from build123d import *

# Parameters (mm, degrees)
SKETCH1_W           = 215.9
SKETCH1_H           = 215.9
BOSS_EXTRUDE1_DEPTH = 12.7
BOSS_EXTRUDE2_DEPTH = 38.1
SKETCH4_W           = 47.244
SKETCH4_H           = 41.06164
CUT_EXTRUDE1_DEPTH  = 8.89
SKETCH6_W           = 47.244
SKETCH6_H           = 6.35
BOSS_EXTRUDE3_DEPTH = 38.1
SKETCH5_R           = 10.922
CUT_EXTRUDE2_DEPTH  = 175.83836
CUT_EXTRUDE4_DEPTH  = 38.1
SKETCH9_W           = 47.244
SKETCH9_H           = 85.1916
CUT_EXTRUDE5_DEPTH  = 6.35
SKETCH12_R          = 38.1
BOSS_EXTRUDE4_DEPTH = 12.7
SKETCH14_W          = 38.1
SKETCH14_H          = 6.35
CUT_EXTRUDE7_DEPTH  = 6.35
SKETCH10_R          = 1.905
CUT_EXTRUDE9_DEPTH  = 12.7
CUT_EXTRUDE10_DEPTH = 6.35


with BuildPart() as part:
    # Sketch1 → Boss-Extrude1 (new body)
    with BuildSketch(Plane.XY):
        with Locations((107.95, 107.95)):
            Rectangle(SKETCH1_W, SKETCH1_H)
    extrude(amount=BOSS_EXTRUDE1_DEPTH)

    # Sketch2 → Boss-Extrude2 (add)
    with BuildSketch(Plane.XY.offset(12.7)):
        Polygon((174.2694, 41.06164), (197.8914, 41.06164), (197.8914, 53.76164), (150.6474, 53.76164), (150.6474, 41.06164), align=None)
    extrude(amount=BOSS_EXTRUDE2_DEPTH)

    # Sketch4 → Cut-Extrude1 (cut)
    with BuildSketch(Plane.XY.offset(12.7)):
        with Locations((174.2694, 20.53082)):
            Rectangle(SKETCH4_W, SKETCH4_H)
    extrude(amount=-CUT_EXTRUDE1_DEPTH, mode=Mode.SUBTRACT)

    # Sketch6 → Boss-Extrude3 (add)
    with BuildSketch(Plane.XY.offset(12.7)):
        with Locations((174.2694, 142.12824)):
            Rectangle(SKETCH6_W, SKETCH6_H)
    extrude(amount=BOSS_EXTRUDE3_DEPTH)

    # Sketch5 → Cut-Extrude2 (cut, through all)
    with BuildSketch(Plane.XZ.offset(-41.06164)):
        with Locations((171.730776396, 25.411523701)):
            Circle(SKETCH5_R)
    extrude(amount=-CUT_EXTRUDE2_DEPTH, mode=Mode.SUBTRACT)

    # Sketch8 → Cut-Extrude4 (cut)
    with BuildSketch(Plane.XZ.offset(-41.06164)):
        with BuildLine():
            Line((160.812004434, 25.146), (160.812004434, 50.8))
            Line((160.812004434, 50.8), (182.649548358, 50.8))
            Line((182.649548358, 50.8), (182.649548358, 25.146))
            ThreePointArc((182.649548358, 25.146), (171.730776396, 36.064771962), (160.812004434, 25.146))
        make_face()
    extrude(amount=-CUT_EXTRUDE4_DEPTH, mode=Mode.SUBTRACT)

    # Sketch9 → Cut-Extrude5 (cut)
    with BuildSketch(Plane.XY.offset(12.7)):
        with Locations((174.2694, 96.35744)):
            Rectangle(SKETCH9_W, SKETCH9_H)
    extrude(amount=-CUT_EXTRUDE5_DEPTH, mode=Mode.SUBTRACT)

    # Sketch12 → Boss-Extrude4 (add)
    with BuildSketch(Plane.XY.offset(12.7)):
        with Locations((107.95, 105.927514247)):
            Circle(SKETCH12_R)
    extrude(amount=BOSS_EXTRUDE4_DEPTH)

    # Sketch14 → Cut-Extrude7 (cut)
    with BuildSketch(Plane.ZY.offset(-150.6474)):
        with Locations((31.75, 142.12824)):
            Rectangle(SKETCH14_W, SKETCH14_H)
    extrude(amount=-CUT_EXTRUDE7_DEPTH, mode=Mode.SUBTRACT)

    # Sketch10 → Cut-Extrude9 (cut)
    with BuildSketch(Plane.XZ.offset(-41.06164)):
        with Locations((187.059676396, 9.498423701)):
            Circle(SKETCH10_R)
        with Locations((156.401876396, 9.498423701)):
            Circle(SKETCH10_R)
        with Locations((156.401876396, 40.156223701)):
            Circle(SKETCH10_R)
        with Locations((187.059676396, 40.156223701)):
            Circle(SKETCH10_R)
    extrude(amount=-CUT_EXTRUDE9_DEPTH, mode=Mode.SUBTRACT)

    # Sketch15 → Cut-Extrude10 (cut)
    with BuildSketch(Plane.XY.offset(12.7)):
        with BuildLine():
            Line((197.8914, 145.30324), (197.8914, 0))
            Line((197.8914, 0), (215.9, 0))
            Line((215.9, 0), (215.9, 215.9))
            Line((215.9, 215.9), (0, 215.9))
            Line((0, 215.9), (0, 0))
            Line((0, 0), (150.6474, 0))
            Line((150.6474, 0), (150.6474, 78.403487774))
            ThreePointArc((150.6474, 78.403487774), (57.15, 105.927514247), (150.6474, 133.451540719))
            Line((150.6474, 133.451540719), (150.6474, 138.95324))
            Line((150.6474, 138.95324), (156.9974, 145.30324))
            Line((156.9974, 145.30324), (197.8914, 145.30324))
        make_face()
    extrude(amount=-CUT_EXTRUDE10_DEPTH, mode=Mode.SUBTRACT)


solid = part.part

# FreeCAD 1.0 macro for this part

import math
import FreeCAD as App
import Part
import Sketcher
from FreeCAD import Vector
Q = App.Units.Quantity

doc = App.newDocument("Part")
body = doc.addObject("PartDesign::Body", "Body")

sketch1 = doc.addObject("Sketcher::SketchObject", "Sketch")
body.addObject(sketch1)
sketch1.AttachmentSupport = (doc.XY_Plane, [""])
sketch1.MapMode = "FlatFace"
sketch1.addGeometry(Part.LineSegment(Vector(0, 215.9, 0), Vector(0, 0, 0)), False)
sketch1.addGeometry(Part.LineSegment(Vector(0, 0, 0), Vector(215.9, 0, 0)), False)
sketch1.addGeometry(Part.LineSegment(Vector(215.9, 0, 0), Vector(215.9, 215.9, 0)), False)
sketch1.addGeometry(Part.LineSegment(Vector(215.9, 215.9, 0), Vector(0, 215.9, 0)), False)
sketch1.addConstraint(Sketcher.Constraint("Coincident", 0, 2, 1, 1))
sketch1.addConstraint(Sketcher.Constraint("Coincident", 1, 2, 2, 1))
sketch1.addConstraint(Sketcher.Constraint("Coincident", 2, 2, 3, 1))
sketch1.addConstraint(Sketcher.Constraint("Coincident", 3, 2, 0, 1))
sketch1.addConstraint(Sketcher.Constraint("Vertical", 0))
sketch1.addConstraint(Sketcher.Constraint("Horizontal", 1))
sketch1.addConstraint(Sketcher.Constraint("Vertical", 2))
sketch1.addConstraint(Sketcher.Constraint("Horizontal", 3))
sketch1.addConstraint(Sketcher.Constraint("Coincident", 0, 2, -1, 1))
sketch1.addConstraint(Sketcher.Constraint("Equal", 3, 0))
sketch1.addConstraint(Sketcher.Constraint("DistanceX", 1, 1, 1, 2, Q("8.5 in")))
pad1 = doc.addObject("PartDesign::Pad", "Pad")
body.addObject(pad1)
pad1.Profile = sketch1
pad1.Length = Q("0.5 in")

sketch2 = doc.addObject("Sketcher::SketchObject", "Sketch001")
body.addObject(sketch2)
sketch2.AttachmentSupport = (doc.XY_Plane, [""])
sketch2.MapMode = "FlatFace"
sketch2.AttachmentOffset = App.Placement(Vector(0, 0, 0.5 * 25.4), App.Rotation())
sketch2.addGeometry(Part.LineSegment(Vector(197.8914, 41.06164, 0), Vector(197.8914, 53.76164, 0)), False)
sketch2.addGeometry(Part.LineSegment(Vector(197.8914, 53.76164, 0), Vector(150.6474, 53.76164, 0)), False)
sketch2.addGeometry(Part.LineSegment(Vector(150.6474, 53.76164, 0), Vector(150.6474, 41.06164, 0)), False)
sketch2.addGeometry(Part.LineSegment(Vector(150.6474, 41.06164, 0), Vector(197.8914, 41.06164, 0)), False)
sketch2.addConstraint(Sketcher.Constraint("Coincident", 0, 2, 1, 1))
sketch2.addConstraint(Sketcher.Constraint("Coincident", 1, 2, 2, 1))
sketch2.addConstraint(Sketcher.Constraint("Coincident", 2, 2, 3, 1))
sketch2.addConstraint(Sketcher.Constraint("Coincident", 3, 2, 0, 1))
sketch2.addConstraint(Sketcher.Constraint("Vertical", 0))
sketch2.addConstraint(Sketcher.Constraint("Horizontal", 1))
sketch2.addConstraint(Sketcher.Constraint("Vertical", 2))
sketch2.addConstraint(Sketcher.Constraint("Horizontal", 3))
sketch2.addConstraint(Sketcher.Constraint("DistanceY", 0, 1, 0, 2, Q("0.5 in")))
sketch2.addConstraint(Sketcher.Constraint("DistanceX", 1, 2, 1, 1, Q("1.86 in")))
sketch2.addConstraint(Sketcher.Constraint("DistanceX", -1, 1, 0, 2, Q("7.791 in")))
sketch2.addConstraint(Sketcher.Constraint("DistanceY", -1, 1, 0, 2, Q("2.1166 in")))
pad2 = doc.addObject("PartDesign::Pad", "Pad001")
body.addObject(pad2)
pad2.Profile = sketch2
pad2.Length = Q("1.5 in")

sketch3 = doc.addObject("Sketcher::SketchObject", "Sketch002")
body.addObject(sketch3)
sketch3.AttachmentSupport = (doc.XY_Plane, [""])
sketch3.MapMode = "FlatFace"
sketch3.AttachmentOffset = App.Placement(Vector(0, 0, 0.5 * 25.4), App.Rotation())
sketch3.addGeometry(Part.LineSegment(Vector(150.6474, 41.06164, 0), Vector(150.6474, 0, 0)), False)
sketch3.addGeometry(Part.LineSegment(Vector(150.6474, 0, 0), Vector(197.8914, 0, 0)), False)
sketch3.addGeometry(Part.LineSegment(Vector(197.8914, 0, 0), Vector(197.8914, 41.06164, 0)), False)
sketch3.addGeometry(Part.LineSegment(Vector(197.8914, 41.06164, 0), Vector(150.6474, 41.06164, 0)), False)
sketch3.addConstraint(Sketcher.Constraint("Coincident", 0, 2, 1, 1))
sketch3.addConstraint(Sketcher.Constraint("Coincident", 1, 2, 2, 1))
sketch3.addConstraint(Sketcher.Constraint("Coincident", 2, 2, 3, 1))
sketch3.addConstraint(Sketcher.Constraint("Coincident", 3, 2, 0, 1))
sketch3.addConstraint(Sketcher.Constraint("Vertical", 0))
sketch3.addConstraint(Sketcher.Constraint("Horizontal", 1))
sketch3.addConstraint(Sketcher.Constraint("Vertical", 2))
sketch3.addConstraint(Sketcher.Constraint("Horizontal", 3))
sketch3.addConstraint(Sketcher.Constraint("PointOnObject", 0, 2, -1))
sketch3.addConstraint(Sketcher.Constraint("DistanceX", 1, 1, 1, 2, Q("1.86 in")))
sketch3.addConstraint(Sketcher.Constraint("DistanceY", 0, 2, 0, 1, Q("1.6166 in")))
sketch3.addConstraint(Sketcher.Constraint("DistanceX", -1, 1, 0, 2, Q("5.931 in")))
pocket1 = doc.addObject("PartDesign::Pocket", "Pocket")
body.addObject(pocket1)
pocket1.Profile = sketch3
pocket1.Length = Q("0.35 in")

sketch4 = doc.addObject("Sketcher::SketchObject", "Sketch003")
body.addObject(sketch4)
sketch4.AttachmentSupport = (doc.XY_Plane, [""])
sketch4.MapMode = "FlatFace"
sketch4.AttachmentOffset = App.Placement(Vector(0, 0, 0.5 * 25.4), App.Rotation())
sketch4.addGeometry(Part.LineSegment(Vector(150.6474, 145.30324, 0), Vector(150.6474, 138.95324, 0)), False)
sketch4.addGeometry(Part.LineSegment(Vector(150.6474, 138.95324, 0), Vector(197.8914, 138.95324, 0)), False)
sketch4.addGeometry(Part.LineSegment(Vector(197.8914, 138.95324, 0), Vector(197.8914, 145.30324, 0)), False)
sketch4.addGeometry(Part.LineSegment(Vector(197.8914, 145.30324, 0), Vector(150.6474, 145.30324, 0)), False)
sketch4.addConstraint(Sketcher.Constraint("Coincident", 0, 2, 1, 1))
sketch4.addConstraint(Sketcher.Constraint("Coincident", 1, 2, 2, 1))
sketch4.addConstraint(Sketcher.Constraint("Coincident", 2, 2, 3, 1))
sketch4.addConstraint(Sketcher.Constraint("Coincident", 3, 2, 0, 1))
sketch4.addConstraint(Sketcher.Constraint("Vertical", 0))
sketch4.addConstraint(Sketcher.Constraint("Horizontal", 1))
sketch4.addConstraint(Sketcher.Constraint("Vertical", 2))
sketch4.addConstraint(Sketcher.Constraint("Horizontal", 3))
sketch4.addConstraint(Sketcher.Constraint("DistanceX", 1, 1, 1, 2, Q("1.86 in")))
sketch4.addConstraint(Sketcher.Constraint("DistanceY", 0, 2, 0, 1, Q("0.25 in")))
sketch4.addConstraint(Sketcher.Constraint("DistanceX", -1, 1, 0, 2, Q("5.931 in")))
sketch4.addConstraint(Sketcher.Constraint("DistanceY", -1, 1, 0, 2, Q("5.4706 in")))
pad3 = doc.addObject("PartDesign::Pad", "Pad002")
body.addObject(pad3)
pad3.Profile = sketch4
pad3.Length = Q("1.5 in")

sketch5 = doc.addObject("Sketcher::SketchObject", "Sketch004")
body.addObject(sketch5)
sketch5.AttachmentSupport = (doc.XZ_Plane, [""])
sketch5.MapMode = "FlatFace"
sketch5.AttachmentOffset = App.Placement(Vector(0, 0, -1.6166 * 25.4), App.Rotation())
sketch5.addGeometry(Part.Circle(Vector(171.730776, 25.411524, 0), Vector(0, 0, 1), 10.922), False)
sketch5.addConstraint(Sketcher.Constraint("Diameter", 0, Q("0.86 in")))
sketch5.addConstraint(Sketcher.Constraint("DistanceX", -1, 1, 0, 3, 171.730776))
sketch5.addConstraint(Sketcher.Constraint("DistanceY", -1, 1, 0, 3, 25.411524))
pocket2 = doc.addObject("PartDesign::Pocket", "Pocket001")
body.addObject(pocket2)
pocket2.Profile = sketch5
pocket2.Type = "ThroughAll"

sketch6 = doc.addObject("Sketcher::SketchObject", "Sketch005")
body.addObject(sketch6)
sketch6.AttachmentSupport = (doc.XZ_Plane, [""])
sketch6.MapMode = "FlatFace"
sketch6.AttachmentOffset = App.Placement(Vector(0, 0, -1.6166 * 25.4), App.Rotation())
sketch6.addGeometry(Part.LineSegment(Vector(160.812004, 50.8, 0), Vector(160.812004, 25.146, 0)), False)
sketch6.addGeometry(Part.ArcOfCircle(Part.Circle(Vector(171.730776, 25.146, 0), Vector(0, 0, 1), 10.918772), math.radians(0), math.radians(180)), False)
sketch6.addGeometry(Part.LineSegment(Vector(182.649548, 25.146, 0), Vector(182.649548, 50.8, 0)), False)
sketch6.addGeometry(Part.LineSegment(Vector(182.649548, 50.8, 0), Vector(160.812004, 50.8, 0)), False)
sketch6.addConstraint(Sketcher.Constraint("Tangent", 0, 2, 1, 2))
sketch6.addConstraint(Sketcher.Constraint("Tangent", 1, 1, 2, 1))
sketch6.addConstraint(Sketcher.Constraint("Coincident", 2, 2, 3, 1))
sketch6.addConstraint(Sketcher.Constraint("Coincident", 3, 2, 0, 1))
sketch6.addConstraint(Sketcher.Constraint("Vertical", 0))
sketch6.addConstraint(Sketcher.Constraint("Vertical", 2))
sketch6.addConstraint(Sketcher.Constraint("Horizontal", 3))
sketch6.addConstraint(Sketcher.Constraint("DistanceY", -1, 1, 2, 2, Q("2 in")))
sketch6.addConstraint(Sketcher.Constraint("DistanceY", 0, 2, 0, 1, Q("1.01 in")))
sketch6.addConstraint(Sketcher.Constraint("Radius", 1, 10.918772))
sketch6.addConstraint(Sketcher.Constraint("DistanceX", -1, 1, 1, 1, 182.649548))
pocket3 = doc.addObject("PartDesign::Pocket", "Pocket002")
body.addObject(pocket3)
pocket3.Profile = sketch6
pocket3.Length = Q("1.5 in")

sketch7 = doc.addObject("Sketcher::SketchObject", "Sketch006")
body.addObject(sketch7)
sketch7.AttachmentSupport = (doc.XY_Plane, [""])
sketch7.MapMode = "FlatFace"
sketch7.AttachmentOffset = App.Placement(Vector(0, 0, 0.5 * 25.4), App.Rotation())
sketch7.addGeometry(Part.LineSegment(Vector(150.6474, 138.95324, 0), Vector(150.6474, 53.76164, 0)), False)
sketch7.addGeometry(Part.LineSegment(Vector(150.6474, 53.76164, 0), Vector(197.8914, 53.76164, 0)), False)
sketch7.addGeometry(Part.LineSegment(Vector(197.8914, 53.76164, 0), Vector(197.8914, 138.95324, 0)), False)
sketch7.addGeometry(Part.LineSegment(Vector(197.8914, 138.95324, 0), Vector(150.6474, 138.95324, 0)), False)
sketch7.addConstraint(Sketcher.Constraint("Coincident", 0, 2, 1, 1))
sketch7.addConstraint(Sketcher.Constraint("Coincident", 1, 2, 2, 1))
sketch7.addConstraint(Sketcher.Constraint("Coincident", 2, 2, 3, 1))
sketch7.addConstraint(Sketcher.Constraint("Coincident", 3, 2, 0, 1))
sketch7.addConstraint(Sketcher.Constraint("Vertical", 0))
sketch7.addConstraint(Sketcher.Constraint("Horizontal", 1))
sketch7.addConstraint(Sketcher.Constraint("Vertical", 2))
sketch7.addConstraint(Sketcher.Constraint("Horizontal", 3))
sketch7.addConstraint(Sketcher.Constraint("DistanceX", 1, 1, 1, 2, Q("1.86 in")))
sketch7.addConstraint(Sketcher.Constraint("DistanceY", 0, 2, 0, 1, Q("3.354 in")))
sketch7.addConstraint(Sketcher.Constraint("DistanceX", -1, 1, 0, 2, Q("5.931 in")))
sketch7.addConstraint(Sketcher.Constraint("DistanceY", -1, 1, 0, 2, Q("2.1166 in")))
pocket4 = doc.addObject("PartDesign::Pocket", "Pocket003")
body.addObject(pocket4)
pocket4.Profile = sketch7
pocket4.Length = Q("0.25 in")

sketch8 = doc.addObject("Sketcher::SketchObject", "Sketch007")
body.addObject(sketch8)
sketch8.AttachmentSupport = (doc.XY_Plane, [""])
sketch8.MapMode = "FlatFace"
sketch8.AttachmentOffset = App.Placement(Vector(0, 0, 0.5 * 25.4), App.Rotation())
sketch8.addGeometry(Part.Circle(Vector(107.95, 105.927514, 0), Vector(0, 0, 1), 38.1), False)
sketch8.addConstraint(Sketcher.Constraint("Diameter", 0, Q("3 in")))
sketch8.addConstraint(Sketcher.Constraint("DistanceX", -1, 1, 0, 3, Q("4.25 in")))
sketch8.addConstraint(Sketcher.Constraint("DistanceY", -1, 1, 0, 3, 105.927514))
pad4 = doc.addObject("PartDesign::Pad", "Pad003")
body.addObject(pad4)
pad4.Profile = sketch8
pad4.Length = Q("0.5 in")

sketch9 = doc.addObject("Sketcher::SketchObject", "Sketch008")
body.addObject(sketch9)
sketch9.AttachmentSupport = (doc.YZ_Plane, [""])
sketch9.MapMode = "FlatFace"
sketch9.AttachmentOffset = App.Placement(Vector(0, 0, 5.931 * 25.4), App.Rotation())
sketch9.addGeometry(Part.LineSegment(Vector(145.30324, 12.7, 0), Vector(138.95324, 12.7, 0)), False)
sketch9.addGeometry(Part.LineSegment(Vector(138.95324, 12.7, 0), Vector(138.95324, 50.8, 0)), False)
sketch9.addGeometry(Part.LineSegment(Vector(138.95324, 50.8, 0), Vector(145.30324, 50.8, 0)), False)
sketch9.addGeometry(Part.LineSegment(Vector(145.30324, 50.8, 0), Vector(145.30324, 12.7, 0)), False)
sketch9.addConstraint(Sketcher.Constraint("Coincident", 0, 2, 1, 1))
sketch9.addConstraint(Sketcher.Constraint("Coincident", 1, 2, 2, 1))
sketch9.addConstraint(Sketcher.Constraint("Coincident", 2, 2, 3, 1))
sketch9.addConstraint(Sketcher.Constraint("Coincident", 3, 2, 0, 1))
sketch9.addConstraint(Sketcher.Constraint("Horizontal", 0))
sketch9.addConstraint(Sketcher.Constraint("Vertical", 1))
sketch9.addConstraint(Sketcher.Constraint("Horizontal", 2))
sketch9.addConstraint(Sketcher.Constraint("Vertical", 3))
sketch9.addConstraint(Sketcher.Constraint("DistanceY", 1, 1, 1, 2, Q("1.5 in")))
sketch9.addConstraint(Sketcher.Constraint("DistanceY", -1, 1, 1, 2, Q("2 in")))
sketch9.addConstraint(Sketcher.Constraint("DistanceX", 0, 2, 0, 1, Q("0.25 in")))
sketch9.addConstraint(Sketcher.Constraint("DistanceX", -1, 1, 0, 2, Q("5.4706 in")))
pocket5 = doc.addObject("PartDesign::Pocket", "Pocket004")
body.addObject(pocket5)
pocket5.Profile = sketch9
pocket5.Length = Q("0.25 in")
pocket5.Reversed = True

sketch10 = doc.addObject("Sketcher::SketchObject", "Sketch009")
body.addObject(sketch10)
sketch10.AttachmentSupport = (doc.XZ_Plane, [""])
sketch10.MapMode = "FlatFace"
sketch10.AttachmentOffset = App.Placement(Vector(0, 0, -1.6166 * 25.4), App.Rotation())
sketch10.addGeometry(Part.Circle(Vector(187.059676, 9.498424, 0), Vector(0, 0, 1), 1.905), False)
sketch10.addGeometry(Part.Circle(Vector(156.401876, 9.498424, 0), Vector(0, 0, 1), 1.905), False)
sketch10.addGeometry(Part.Circle(Vector(156.401876, 40.156224, 0), Vector(0, 0, 1), 1.905), False)
sketch10.addGeometry(Part.Circle(Vector(187.059676, 40.156224, 0), Vector(0, 0, 1), 1.905), False)
sketch10.addConstraint(Sketcher.Constraint("Equal", 0, 1))
sketch10.addConstraint(Sketcher.Constraint("Equal", 1, 2))
sketch10.addConstraint(Sketcher.Constraint("Equal", 2, 3))
sketch10.addConstraint(Sketcher.Constraint("Horizontal", 0, 3, 1, 3))
sketch10.addConstraint(Sketcher.Constraint("Horizontal", 2, 3, 3, 3))
sketch10.addConstraint(Sketcher.Constraint("Vertical", 1, 3, 2, 3))
sketch10.addConstraint(Sketcher.Constraint("Vertical", 0, 3, 3, 3))
sketch10.addConstraint(Sketcher.Constraint("Diameter", 0, Q("0.15 in")))
sketch10.addConstraint(Sketcher.Constraint("DistanceX", 1, 3, 0, 3, Q("1.207 in")))
sketch10.addConstraint(Sketcher.Constraint("DistanceY", 1, 3, 2, 3, Q("1.207 in")))
sketch10.addConstraint(Sketcher.Constraint("DistanceX", -1, 1, 0, 3, 187.059676))
sketch10.addConstraint(Sketcher.Constraint("DistanceY", -1, 1, 0, 3, 9.498424))
pocket6 = doc.addObject("PartDesign::Pocket", "Pocket005")
body.addObject(pocket6)
pocket6.Profile = sketch10
pocket6.Length = Q("0.5 in")

sketch11 = doc.addObject("Sketcher::SketchObject", "Sketch010")
body.addObject(sketch11)
sketch11.AttachmentSupport = (doc.XY_Plane, [""])
sketch11.MapMode = "FlatFace"
sketch11.AttachmentOffset = App.Placement(Vector(0, 0, 0.5 * 25.4), App.Rotation())
sketch11.addGeometry(Part.LineSegment(Vector(197.8914, 145.30324, 0), Vector(197.8914, 0, 0)), False)
sketch11.addGeometry(Part.LineSegment(Vector(197.8914, 0, 0), Vector(215.9, 0, 0)), False)
sketch11.addGeometry(Part.LineSegment(Vector(215.9, 0, 0), Vector(215.9, 215.9, 0)), False)
sketch11.addGeometry(Part.LineSegment(Vector(215.9, 215.9, 0), Vector(0, 215.9, 0)), False)
sketch11.addGeometry(Part.LineSegment(Vector(0, 215.9, 0), Vector(0, 0, 0)), False)
sketch11.addGeometry(Part.LineSegment(Vector(0, 0, 0), Vector(150.6474, 0, 0)), False)
sketch11.addGeometry(Part.LineSegment(Vector(150.6474, 0, 0), Vector(150.6474, 78.403488, 0)), False)
sketch11.addGeometry(Part.ArcOfCircle(Part.Circle(Vector(107.95, 105.927514, 0), Vector(0, 0, 1), 50.8), math.radians(32.807044), math.radians(327.192956)), False)
sketch11.addGeometry(Part.LineSegment(Vector(150.6474, 133.451541, 0), Vector(150.6474, 138.95324, 0)), False)
sketch11.addGeometry(Part.LineSegment(Vector(150.6474, 138.95324, 0), Vector(156.9974, 145.30324, 0)), False)
sketch11.addGeometry(Part.LineSegment(Vector(156.9974, 145.30324, 0), Vector(197.8914, 145.30324, 0)), False)
sketch11.addConstraint(Sketcher.Constraint("Coincident", 0, 2, 1, 1))
sketch11.addConstraint(Sketcher.Constraint("Coincident", 1, 2, 2, 1))
sketch11.addConstraint(Sketcher.Constraint("Coincident", 2, 2, 3, 1))
sketch11.addConstraint(Sketcher.Constraint("Coincident", 3, 2, 4, 1))
sketch11.addConstraint(Sketcher.Constraint("Coincident", 4, 2, 5, 1))
sketch11.addConstraint(Sketcher.Constraint("Coincident", 5, 2, 6, 1))
sketch11.addConstraint(Sketcher.Constraint("Coincident", 6, 2, 7, 2))
sketch11.addConstraint(Sketcher.Constraint("Coincident", 7, 1, 8, 1))
sketch11.addConstraint(Sketcher.Constraint("Coincident", 8, 2, 9, 1))
sketch11.addConstraint(Sketcher.Constraint("Coincident", 9, 2, 10, 1))
sketch11.addConstraint(Sketcher.Constraint("Coincident", 10, 2, 0, 1))
sketch11.addConstraint(Sketcher.Constraint("Vertical", 0))
sketch11.addConstraint(Sketcher.Constraint("Horizontal", 1))
sketch11.addConstraint(Sketcher.Constraint("Vertical", 2))
sketch11.addConstraint(Sketcher.Constraint("Horizontal", 3))
sketch11.addConstraint(Sketcher.Constraint("Vertical", 4))
sketch11.addConstraint(Sketcher.Constraint("Horizontal", 5))
sketch11.addConstraint(Sketcher.Constraint("Vertical", 6))
sketch11.addConstraint(Sketcher.Constraint("Vertical", 8))
sketch11.addConstraint(Sketcher.Constraint("Horizontal", 10))
sketch11.addConstraint(Sketcher.Constraint("Coincident", 4, 2, -1, 1))
sketch11.addConstraint(Sketcher.Constraint("PointOnObject", 0, 2, -1))
sketch11.addConstraint(Sketcher.Constraint("Vertical", 6, 2, 7, 1))
sketch11.addConstraint(Sketcher.Constraint("Equal", 3, 2))
sketch11.addConstraint(Sketcher.Constraint("Radius", 7, Q("2 in")))
sketch11.addConstraint(Sketcher.Constraint("DistanceX", 3, 2, 3, 1, Q("8.5 in")))
sketch11.addConstraint(Sketcher.Constraint("Angle", 9, Q("45 deg")))
sketch11.addConstraint(Sketcher.Constraint("DistanceX", 10, 1, 10, 2, Q("1.61 in")))
sketch11.addConstraint(Sketcher.Constraint("DistanceX", 1, 1, 1, 2, Q("0.709 in")))
sketch11.addConstraint(Sketcher.Constraint("DistanceX", 5, 1, 5, 2, Q("5.931 in")))
sketch11.addConstraint(Sketcher.Constraint("DistanceX", -1, 1, 7, 3, Q("4.25 in")))
sketch11.addConstraint(Sketcher.Constraint("DistanceY", 0, 2, 0, 1, Q("5.7206 in")))
sketch11.addConstraint(Sketcher.Constraint("DistanceY", 8, 1, 8, 2, 5.501699))
pocket7 = doc.addObject("PartDesign::Pocket", "Pocket006")
body.addObject(pocket7)
pocket7.Profile = sketch11
pocket7.Length = Q("0.25 in")

doc.recompute()
